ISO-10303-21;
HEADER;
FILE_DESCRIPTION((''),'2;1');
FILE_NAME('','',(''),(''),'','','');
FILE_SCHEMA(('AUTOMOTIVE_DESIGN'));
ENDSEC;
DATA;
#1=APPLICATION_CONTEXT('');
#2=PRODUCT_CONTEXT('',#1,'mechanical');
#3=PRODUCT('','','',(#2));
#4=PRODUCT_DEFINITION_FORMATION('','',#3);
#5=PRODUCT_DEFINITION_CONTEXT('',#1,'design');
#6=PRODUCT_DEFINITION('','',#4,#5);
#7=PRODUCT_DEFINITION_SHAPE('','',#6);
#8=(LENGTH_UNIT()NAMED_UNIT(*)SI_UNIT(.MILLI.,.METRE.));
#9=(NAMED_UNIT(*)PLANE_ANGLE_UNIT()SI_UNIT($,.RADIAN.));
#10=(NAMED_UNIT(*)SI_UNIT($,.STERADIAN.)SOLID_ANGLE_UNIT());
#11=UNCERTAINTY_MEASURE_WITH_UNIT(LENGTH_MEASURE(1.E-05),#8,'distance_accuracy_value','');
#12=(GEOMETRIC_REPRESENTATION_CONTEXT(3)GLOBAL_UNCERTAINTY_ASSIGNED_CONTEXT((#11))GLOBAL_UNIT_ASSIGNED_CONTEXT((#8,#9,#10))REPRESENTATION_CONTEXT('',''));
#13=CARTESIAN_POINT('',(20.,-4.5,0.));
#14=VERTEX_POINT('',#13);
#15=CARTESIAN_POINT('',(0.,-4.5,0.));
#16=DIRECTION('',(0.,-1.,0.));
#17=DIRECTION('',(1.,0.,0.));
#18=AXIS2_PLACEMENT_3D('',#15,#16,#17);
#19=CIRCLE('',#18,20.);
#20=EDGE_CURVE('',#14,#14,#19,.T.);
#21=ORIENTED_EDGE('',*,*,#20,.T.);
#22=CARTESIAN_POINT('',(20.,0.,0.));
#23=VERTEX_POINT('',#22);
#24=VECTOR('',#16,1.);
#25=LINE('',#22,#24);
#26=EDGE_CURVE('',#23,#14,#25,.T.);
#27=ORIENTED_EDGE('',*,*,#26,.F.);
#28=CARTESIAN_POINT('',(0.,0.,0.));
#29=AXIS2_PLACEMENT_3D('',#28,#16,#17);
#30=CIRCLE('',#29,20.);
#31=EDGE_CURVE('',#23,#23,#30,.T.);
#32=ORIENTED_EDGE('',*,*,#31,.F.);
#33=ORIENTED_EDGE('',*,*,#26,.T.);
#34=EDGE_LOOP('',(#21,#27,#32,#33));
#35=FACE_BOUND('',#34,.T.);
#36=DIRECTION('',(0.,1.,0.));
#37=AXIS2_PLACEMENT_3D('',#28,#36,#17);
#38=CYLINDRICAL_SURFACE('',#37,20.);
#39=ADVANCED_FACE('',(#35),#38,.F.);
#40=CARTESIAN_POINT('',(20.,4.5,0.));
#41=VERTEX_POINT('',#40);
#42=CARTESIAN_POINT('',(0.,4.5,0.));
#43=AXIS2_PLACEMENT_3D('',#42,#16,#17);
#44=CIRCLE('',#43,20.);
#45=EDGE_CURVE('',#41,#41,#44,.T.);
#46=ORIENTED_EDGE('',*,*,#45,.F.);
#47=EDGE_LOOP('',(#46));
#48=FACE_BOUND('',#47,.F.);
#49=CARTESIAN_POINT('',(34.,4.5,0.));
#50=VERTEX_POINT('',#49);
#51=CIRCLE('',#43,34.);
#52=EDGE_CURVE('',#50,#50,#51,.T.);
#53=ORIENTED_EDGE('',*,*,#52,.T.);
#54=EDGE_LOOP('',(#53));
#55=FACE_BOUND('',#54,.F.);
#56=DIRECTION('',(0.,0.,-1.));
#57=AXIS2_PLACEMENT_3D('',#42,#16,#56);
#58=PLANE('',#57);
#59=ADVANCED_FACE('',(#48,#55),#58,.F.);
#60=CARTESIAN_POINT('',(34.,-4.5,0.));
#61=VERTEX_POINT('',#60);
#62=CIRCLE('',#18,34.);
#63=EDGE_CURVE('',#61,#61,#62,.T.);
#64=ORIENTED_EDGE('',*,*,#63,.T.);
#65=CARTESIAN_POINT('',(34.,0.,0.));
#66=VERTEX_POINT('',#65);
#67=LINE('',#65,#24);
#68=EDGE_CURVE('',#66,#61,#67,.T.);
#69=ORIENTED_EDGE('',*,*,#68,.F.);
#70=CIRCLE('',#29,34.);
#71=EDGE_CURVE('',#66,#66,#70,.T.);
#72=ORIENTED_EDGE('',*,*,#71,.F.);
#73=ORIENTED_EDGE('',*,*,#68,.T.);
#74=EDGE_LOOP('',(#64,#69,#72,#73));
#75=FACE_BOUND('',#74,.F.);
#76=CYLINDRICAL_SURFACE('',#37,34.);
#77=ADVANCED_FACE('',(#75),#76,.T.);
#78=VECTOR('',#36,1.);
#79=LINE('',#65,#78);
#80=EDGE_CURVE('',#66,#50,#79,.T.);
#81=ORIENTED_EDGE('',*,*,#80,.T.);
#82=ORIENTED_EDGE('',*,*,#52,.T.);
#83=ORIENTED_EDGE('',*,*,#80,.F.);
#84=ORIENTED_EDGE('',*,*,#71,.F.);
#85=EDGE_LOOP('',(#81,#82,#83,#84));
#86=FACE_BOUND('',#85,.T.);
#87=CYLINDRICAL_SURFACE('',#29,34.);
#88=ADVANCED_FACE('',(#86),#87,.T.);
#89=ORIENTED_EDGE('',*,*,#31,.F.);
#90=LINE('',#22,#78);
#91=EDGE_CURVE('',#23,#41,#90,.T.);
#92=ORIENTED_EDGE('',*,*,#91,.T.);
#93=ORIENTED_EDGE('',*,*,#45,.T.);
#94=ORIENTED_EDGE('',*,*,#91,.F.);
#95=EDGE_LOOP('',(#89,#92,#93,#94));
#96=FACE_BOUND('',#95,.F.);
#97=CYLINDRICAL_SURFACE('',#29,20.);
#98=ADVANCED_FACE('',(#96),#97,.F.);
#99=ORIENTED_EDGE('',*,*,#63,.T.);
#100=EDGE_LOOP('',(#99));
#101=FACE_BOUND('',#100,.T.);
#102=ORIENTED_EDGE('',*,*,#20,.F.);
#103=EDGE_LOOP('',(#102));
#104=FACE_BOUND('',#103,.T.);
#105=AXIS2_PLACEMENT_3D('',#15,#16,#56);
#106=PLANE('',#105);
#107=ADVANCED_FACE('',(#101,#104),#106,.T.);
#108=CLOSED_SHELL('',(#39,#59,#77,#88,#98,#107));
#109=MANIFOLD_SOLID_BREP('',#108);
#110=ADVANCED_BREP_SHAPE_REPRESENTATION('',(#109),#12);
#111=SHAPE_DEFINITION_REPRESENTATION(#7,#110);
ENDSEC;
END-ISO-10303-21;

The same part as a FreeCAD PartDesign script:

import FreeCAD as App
import Part
import Sketcher

doc = App.newDocument("Part")
params = doc.addObject("Spreadsheet::Sheet", "Params")
for row, (alias, value) in enumerate([
    ("sketch1_diameter", "68 mm"),
    ("sketch1_diameter2", "40 mm"),
    ("pad1_length", "9 mm"),
], start=1):
    params.set(f"A{row}", alias)
    params.set(f"B{row}", "=" + value)
    params.setAlias(f"B{row}", alias)

body = doc.addObject("PartDesign::Body", "Body")

sketch1 = body.newObject("Sketcher::SketchObject", "Sketch")
sketch1.AttachmentSupport = (doc.getObject("XZ_Plane"), [""])
sketch1.MapMode = "FlatFace"
sketch1.addGeometry([
    Part.Circle(App.Vector(0, 0, 0), App.Vector(0, 0, 1), 34),
    Part.Circle(App.Vector(0, 0, 0), App.Vector(0, 0, 1), 20),
], False)
sketch1.addConstraint([
    Sketcher.Constraint("Coincident", 0, 3, -1, 1),
    Sketcher.Constraint("Coincident", 1, 3, -1, 1),
    Sketcher.Constraint("Diameter", 0, 68.0),
    Sketcher.Constraint("Diameter", 1, 40.0),
])
sketch1.setExpression("Constraints[2]", "Params.sketch1_diameter")
sketch1.setExpression("Constraints[3]", "Params.sketch1_diameter2")
pad1 = body.newObject("PartDesign::Pad", "Pad")
pad1.Profile = sketch1
pad1.setExpression("Length", "Params.pad1_length")
pad1.Midplane = True

doc.recompute()
